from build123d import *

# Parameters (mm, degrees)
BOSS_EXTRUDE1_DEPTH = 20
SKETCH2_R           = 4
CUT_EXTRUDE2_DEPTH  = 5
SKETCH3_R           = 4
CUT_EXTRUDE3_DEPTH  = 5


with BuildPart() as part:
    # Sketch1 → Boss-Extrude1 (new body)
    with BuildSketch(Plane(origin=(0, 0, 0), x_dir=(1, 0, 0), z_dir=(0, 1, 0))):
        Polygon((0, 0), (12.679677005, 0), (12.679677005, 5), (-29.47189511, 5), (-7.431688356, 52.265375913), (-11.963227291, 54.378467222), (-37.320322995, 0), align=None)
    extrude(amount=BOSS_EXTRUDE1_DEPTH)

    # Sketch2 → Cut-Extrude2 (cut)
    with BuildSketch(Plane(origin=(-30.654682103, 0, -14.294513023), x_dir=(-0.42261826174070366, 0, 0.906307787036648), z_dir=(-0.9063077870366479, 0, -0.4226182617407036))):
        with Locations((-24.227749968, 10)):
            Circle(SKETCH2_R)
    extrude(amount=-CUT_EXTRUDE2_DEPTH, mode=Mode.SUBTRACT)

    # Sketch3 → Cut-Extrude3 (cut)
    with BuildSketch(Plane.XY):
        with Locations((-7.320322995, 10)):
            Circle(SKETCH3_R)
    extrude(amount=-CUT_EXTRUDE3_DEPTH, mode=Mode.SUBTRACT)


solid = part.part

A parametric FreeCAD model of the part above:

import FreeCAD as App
import Part
import Sketcher
from FreeCAD import Vector
Q = App.Units.Quantity

doc = App.newDocument("Part")
params = doc.addObject("Spreadsheet::Sheet", "Params")
for row, (alias, value) in enumerate([
    ("sketch1_width", "50 mm"),
    ("sketch1_height", "5 mm"),
    ("sketch1_length", "5 mm"),
    ("sketch1_length2", "60 mm"),
    ("pad1_length", "20 mm"),
    ("sketch2_diameter", "8 mm"),
    ("pocket1_length", "5 mm"),
    ("sketch3_diameter", "8 mm"),
    ("pocket2_length", "5 mm"),
], start=1):
    params.set(f"A{row}", alias)
    params.set(f"B{row}", "=" + value)
    params.setAlias(f"B{row}", alias)

body = doc.addObject("PartDesign::Body", "Body")

# Sketch on XZ plane
sketch1 = body.newObject("Sketcher::SketchObject", "Sketch")
sketch1.AttachmentSupport = (doc.getObject("XZ_Plane"), [""])
sketch1.MapMode = "FlatFace"
sketch1.addGeometry([
    Part.LineSegment(Vector(12.679677, 0, 0), Vector(12.679677, -5, 0)),  # 0
    Part.LineSegment(Vector(12.679677, -5, 0), Vector(-29.471895, -5, 0)),  # 1
    Part.LineSegment(Vector(-29.471895, -5, 0), Vector(-7.431688, -52.265376, 0)),  # 2
    Part.LineSegment(Vector(-7.431688, -52.265376, 0), Vector(-11.963227, -54.378467, 0)),  # 3
    Part.LineSegment(Vector(-11.963227, -54.378467, 0), Vector(-37.320323, 0, 0)),  # 4
    Part.LineSegment(Vector(-37.320323, 0, 0), Vector(12.679677, 0, 0)),  # 5
], False)
sketch1.addConstraint([
    Sketcher.Constraint("Coincident", 0, 2, 1, 1),
    Sketcher.Constraint("Coincident", 1, 2, 2, 1),
    Sketcher.Constraint("Coincident", 2, 2, 3, 1),
    Sketcher.Constraint("Coincident", 3, 2, 4, 1),
    Sketcher.Constraint("Coincident", 4, 2, 5, 1),
    Sketcher.Constraint("Coincident", 5, 2, 0, 1),
    Sketcher.Constraint("Vertical", 0),
    Sketcher.Constraint("Horizontal", 1),
    Sketcher.Constraint("Horizontal", 5),
    Sketcher.Constraint("PointOnObject", 4, 2, -1),
    Sketcher.Constraint("Perpendicular", 2, 3),
    Sketcher.Constraint("Perpendicular", 3, 4),
    Sketcher.Constraint("DistanceX", 5, 1, 5, 2, 50.0),
    Sketcher.Constraint("DistanceY", 0, 2, 0, 1, 5.0),
    Sketcher.Constraint("Angle", 2, Q("-65 deg")),
    Sketcher.Constraint("Distance", 3, 5.0),
    Sketcher.Constraint("Distance", 4, 60.0),
    Sketcher.Constraint("DistanceX", 2, 2, -1, 1, 7.431688),
])
sketch1.setExpression("Constraints[12]", "Params.sketch1_width")
sketch1.setExpression("Constraints[13]", "Params.sketch1_height")
sketch1.setExpression("Constraints[15]", "Params.sketch1_length")
sketch1.setExpression("Constraints[16]", "Params.sketch1_length2")
pad1 = body.newObject("PartDesign::Pad", "Pad")
pad1.Profile = sketch1
pad1.setExpression("Length", "Params.pad1_length")
pad1.Reversed = True

# Sketch on an angled plane
sketch2 = body.newObject("Sketcher::SketchObject", "Sketch001")
sketch2.Placement = App.Placement(Vector(-30.654682, 0, -14.294513), App.Rotation(Vector(-0.422618262, 0, 0.906307787), Vector(0, 1, 0), Vector(-0.906307787, 0, -0.422618262), "ZXY"))
sketch2.addGeometry(Part.Circle(Vector(-24.22775, 10, 0), Vector(0, 0, 1), 4), False)
sketch2.addConstraint([
    Sketcher.Constraint("Diameter", 0, 8.0),
    Sketcher.Constraint("DistanceY", -1, 1, 0, 3, 10.0),
    Sketcher.Constraint("DistanceX", 0, 3, -1, 1, 24.22775),
])
sketch2.setExpression("Constraints[0]", "Params.sketch2_diameter")
pocket1 = body.newObject("PartDesign::Pocket", "Pocket")
pocket1.Profile = sketch2
pocket1.setExpression("Length", "Params.pocket1_length")

# Sketch on XY plane
sketch3 = body.newObject("Sketcher::SketchObject", "Sketch002")
sketch3.AttachmentSupport = (doc.getObject("XY_Plane"), [""])
sketch3.MapMode = "FlatFace"
sketch3.addGeometry(Part.Circle(Vector(-7.320323, 10, 0), Vector(0, 0, 1), 4), False)
sketch3.addConstraint([
    Sketcher.Constraint("Diameter", 0, 8.0),
    Sketcher.Constraint("DistanceY", -1, 1, 0, 3, 10.0),
    Sketcher.Constraint("DistanceX", 0, 3, -1, 1, 7.320323),
])
sketch3.setExpression("Constraints[0]", "Params.sketch3_diameter")
pocket2 = body.newObject("PartDesign::Pocket", "Pocket001")
pocket2.Profile = sketch3
pocket2.setExpression("Length", "Params.pocket2_length")

doc.recompute()
